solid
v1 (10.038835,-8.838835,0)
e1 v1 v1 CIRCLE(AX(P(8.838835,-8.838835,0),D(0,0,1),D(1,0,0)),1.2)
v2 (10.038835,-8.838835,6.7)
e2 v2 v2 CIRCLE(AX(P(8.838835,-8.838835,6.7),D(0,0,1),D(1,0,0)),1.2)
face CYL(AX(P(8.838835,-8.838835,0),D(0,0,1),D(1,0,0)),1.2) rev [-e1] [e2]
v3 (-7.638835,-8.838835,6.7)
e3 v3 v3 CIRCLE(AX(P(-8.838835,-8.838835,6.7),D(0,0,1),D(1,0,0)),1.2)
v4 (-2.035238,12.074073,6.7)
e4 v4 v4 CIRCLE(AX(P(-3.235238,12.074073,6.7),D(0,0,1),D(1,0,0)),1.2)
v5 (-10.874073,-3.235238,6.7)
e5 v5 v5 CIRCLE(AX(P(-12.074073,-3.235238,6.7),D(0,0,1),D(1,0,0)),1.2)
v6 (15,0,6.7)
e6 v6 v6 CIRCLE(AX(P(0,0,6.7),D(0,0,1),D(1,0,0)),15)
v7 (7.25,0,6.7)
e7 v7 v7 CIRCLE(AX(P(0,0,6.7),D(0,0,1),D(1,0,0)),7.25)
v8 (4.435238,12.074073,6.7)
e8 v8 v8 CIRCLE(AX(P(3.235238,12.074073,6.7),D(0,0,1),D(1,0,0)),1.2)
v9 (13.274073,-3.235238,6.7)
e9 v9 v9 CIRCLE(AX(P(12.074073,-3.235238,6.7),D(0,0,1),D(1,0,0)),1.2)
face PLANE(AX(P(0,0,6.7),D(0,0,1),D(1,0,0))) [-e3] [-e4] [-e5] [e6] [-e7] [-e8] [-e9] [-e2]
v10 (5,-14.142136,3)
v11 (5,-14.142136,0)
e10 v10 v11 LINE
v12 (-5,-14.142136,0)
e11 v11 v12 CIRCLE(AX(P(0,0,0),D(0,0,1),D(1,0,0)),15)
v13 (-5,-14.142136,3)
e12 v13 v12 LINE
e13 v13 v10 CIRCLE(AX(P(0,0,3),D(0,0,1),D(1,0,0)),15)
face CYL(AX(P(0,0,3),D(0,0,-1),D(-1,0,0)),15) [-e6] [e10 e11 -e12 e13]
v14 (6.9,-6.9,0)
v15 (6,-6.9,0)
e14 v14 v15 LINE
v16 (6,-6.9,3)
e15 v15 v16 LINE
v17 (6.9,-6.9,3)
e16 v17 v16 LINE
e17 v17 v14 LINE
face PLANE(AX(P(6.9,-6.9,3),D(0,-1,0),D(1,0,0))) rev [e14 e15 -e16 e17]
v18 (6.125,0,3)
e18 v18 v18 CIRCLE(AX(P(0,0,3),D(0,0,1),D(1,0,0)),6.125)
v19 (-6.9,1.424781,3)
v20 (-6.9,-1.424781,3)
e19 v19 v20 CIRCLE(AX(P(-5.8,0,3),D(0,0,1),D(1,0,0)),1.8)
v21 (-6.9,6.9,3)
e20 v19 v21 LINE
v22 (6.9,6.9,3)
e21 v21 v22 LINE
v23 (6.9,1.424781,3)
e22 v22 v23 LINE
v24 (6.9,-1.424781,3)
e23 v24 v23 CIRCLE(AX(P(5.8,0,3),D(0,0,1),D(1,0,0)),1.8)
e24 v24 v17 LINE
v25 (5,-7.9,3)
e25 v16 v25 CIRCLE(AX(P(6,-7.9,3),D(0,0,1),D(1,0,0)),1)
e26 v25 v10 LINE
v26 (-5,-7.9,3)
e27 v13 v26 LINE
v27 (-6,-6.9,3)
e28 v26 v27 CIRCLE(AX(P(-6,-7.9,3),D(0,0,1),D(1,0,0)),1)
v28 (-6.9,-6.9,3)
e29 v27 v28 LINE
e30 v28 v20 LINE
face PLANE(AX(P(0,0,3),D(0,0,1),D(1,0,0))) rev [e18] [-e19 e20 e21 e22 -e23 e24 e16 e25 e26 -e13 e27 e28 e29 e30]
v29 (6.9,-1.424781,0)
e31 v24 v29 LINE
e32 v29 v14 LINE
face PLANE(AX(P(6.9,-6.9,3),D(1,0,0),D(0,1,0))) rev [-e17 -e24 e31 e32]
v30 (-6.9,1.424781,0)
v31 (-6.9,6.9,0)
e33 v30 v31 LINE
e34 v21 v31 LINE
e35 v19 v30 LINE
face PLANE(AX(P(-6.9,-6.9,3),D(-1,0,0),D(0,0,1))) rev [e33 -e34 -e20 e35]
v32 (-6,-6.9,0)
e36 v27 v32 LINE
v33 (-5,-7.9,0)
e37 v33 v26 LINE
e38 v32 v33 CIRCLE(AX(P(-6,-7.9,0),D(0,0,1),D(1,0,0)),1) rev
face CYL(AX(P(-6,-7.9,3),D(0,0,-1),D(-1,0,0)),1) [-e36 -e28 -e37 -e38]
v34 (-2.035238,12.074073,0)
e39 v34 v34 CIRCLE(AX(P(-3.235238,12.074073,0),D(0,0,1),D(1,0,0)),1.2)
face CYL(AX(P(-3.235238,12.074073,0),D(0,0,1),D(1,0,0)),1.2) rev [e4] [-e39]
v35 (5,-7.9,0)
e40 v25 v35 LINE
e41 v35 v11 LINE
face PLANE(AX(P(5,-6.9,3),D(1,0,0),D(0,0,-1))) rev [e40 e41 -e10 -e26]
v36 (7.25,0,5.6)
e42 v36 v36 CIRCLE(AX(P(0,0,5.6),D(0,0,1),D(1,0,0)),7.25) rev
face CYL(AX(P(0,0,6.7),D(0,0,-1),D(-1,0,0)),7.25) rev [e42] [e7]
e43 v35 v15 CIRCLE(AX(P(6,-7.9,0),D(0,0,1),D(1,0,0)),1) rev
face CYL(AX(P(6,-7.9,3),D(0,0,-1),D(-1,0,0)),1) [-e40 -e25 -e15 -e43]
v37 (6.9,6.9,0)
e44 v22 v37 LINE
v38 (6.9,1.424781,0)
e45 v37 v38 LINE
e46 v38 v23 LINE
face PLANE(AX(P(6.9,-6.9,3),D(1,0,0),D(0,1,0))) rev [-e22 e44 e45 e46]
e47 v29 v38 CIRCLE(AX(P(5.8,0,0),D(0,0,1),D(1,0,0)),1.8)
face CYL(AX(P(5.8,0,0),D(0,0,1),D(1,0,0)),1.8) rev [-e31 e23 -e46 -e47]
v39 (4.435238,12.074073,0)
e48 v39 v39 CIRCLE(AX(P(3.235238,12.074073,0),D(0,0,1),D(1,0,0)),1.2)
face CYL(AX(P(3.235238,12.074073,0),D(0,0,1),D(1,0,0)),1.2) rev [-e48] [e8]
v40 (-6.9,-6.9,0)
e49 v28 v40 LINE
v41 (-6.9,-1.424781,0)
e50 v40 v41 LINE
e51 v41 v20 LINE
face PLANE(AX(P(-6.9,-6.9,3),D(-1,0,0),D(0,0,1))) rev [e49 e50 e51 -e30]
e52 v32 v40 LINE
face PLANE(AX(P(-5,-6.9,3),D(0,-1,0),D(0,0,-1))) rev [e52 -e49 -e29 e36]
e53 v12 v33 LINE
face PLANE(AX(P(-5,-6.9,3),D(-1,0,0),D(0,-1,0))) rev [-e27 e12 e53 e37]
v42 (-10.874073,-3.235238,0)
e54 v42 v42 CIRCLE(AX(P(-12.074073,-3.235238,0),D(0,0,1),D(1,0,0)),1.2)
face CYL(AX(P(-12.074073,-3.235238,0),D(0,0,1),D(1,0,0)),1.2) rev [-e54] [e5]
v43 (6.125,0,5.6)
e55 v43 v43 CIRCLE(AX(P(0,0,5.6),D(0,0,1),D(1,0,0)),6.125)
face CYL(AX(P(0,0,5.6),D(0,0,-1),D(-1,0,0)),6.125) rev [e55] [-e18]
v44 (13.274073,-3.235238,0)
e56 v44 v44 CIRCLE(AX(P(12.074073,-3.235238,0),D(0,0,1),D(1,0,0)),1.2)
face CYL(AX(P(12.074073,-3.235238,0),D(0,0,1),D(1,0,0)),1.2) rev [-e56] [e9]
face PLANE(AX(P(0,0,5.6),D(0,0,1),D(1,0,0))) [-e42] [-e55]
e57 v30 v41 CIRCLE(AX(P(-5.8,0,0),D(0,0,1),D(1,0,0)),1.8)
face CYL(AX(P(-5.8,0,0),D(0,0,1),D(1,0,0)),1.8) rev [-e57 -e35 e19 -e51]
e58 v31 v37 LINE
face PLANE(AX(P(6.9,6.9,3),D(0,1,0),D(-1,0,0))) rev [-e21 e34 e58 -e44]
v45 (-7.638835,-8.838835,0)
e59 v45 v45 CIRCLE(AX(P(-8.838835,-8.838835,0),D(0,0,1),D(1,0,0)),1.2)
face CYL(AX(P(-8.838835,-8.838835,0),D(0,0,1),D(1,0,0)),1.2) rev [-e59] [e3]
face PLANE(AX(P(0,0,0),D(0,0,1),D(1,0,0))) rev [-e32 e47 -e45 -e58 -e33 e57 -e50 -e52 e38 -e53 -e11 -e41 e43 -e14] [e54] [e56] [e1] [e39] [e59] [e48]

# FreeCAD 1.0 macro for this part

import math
import FreeCAD as App
import Part
import Sketcher
from FreeCAD import Vector


def edges_at(feature, points):
    """Names of the edges that pass closest to the given points."""
    edges = feature.Shape.Edges
    near = lambda p: min(range(len(edges)), key=lambda i: edges[i].distToShape(Part.Vertex(*p))[0])
    return sorted({f"Edge{near(p) + 1}" for p in points})

doc = App.newDocument("Part")
body = doc.addObject("PartDesign::Body", "Body")

# Sketch on XY plane
sketch1 = doc.addObject("Sketcher::SketchObject", "Sketch")
body.addObject(sketch1)
sketch1.AttachmentSupport = (doc.XY_Plane, [""])
sketch1.MapMode = "FlatFace"
sketch1.addGeometry(Part.LineSegment(Vector(-5, -6.9, 0), Vector(-6.9, -6.9, 0)), False)
sketch1.addGeometry(Part.LineSegment(Vector(-6.9, -6.9, 0), Vector(-6.9, 6.9, 0)), False)
sketch1.addGeometry(Part.LineSegment(Vector(-6.9, 6.9, 0), Vector(6.9, 6.9, 0)), False)
sketch1.addGeometry(Part.LineSegment(Vector(6.9, 6.9, 0), Vector(6.9, -6.9, 0)), False)
sketch1.addGeometry(Part.LineSegment(Vector(6.9, -6.9, 0), Vector(5, -6.9, 0)), False)
sketch1.addGeometry(Part.LineSegment(Vector(5, -6.9, 0), Vector(5, -14.142136, 0)), False)
sketch1.addGeometry(Part.ArcOfCircle(Part.Circle(Vector(0, 0, 0), Vector(0, 0, 1), 15), math.radians(-70.528779), math.radians(250.528779)), False)
sketch1.addGeometry(Part.LineSegment(Vector(-5, -14.142136, 0), Vector(-5, -6.9, 0)), False)
sketch1.addConstraint(Sketcher.Constraint("Coincident", 0, 2, 1, 1))
sketch1.addConstraint(Sketcher.Constraint("Coincident", 1, 2, 2, 1))
sketch1.addConstraint(Sketcher.Constraint("Coincident", 2, 2, 3, 1))
sketch1.addConstraint(Sketcher.Constraint("Coincident", 3, 2, 4, 1))
sketch1.addConstraint(Sketcher.Constraint("Coincident", 4, 2, 5, 1))
sketch1.addConstraint(Sketcher.Constraint("Coincident", 5, 2, 6, 1))
sketch1.addConstraint(Sketcher.Constraint("Coincident", 6, 2, 7, 1))
sketch1.addConstraint(Sketcher.Constraint("Coincident", 7, 2, 0, 1))
sketch1.addConstraint(Sketcher.Constraint("Horizontal", 0))
sketch1.addConstraint(Sketcher.Constraint("Vertical", 1))
sketch1.addConstraint(Sketcher.Constraint("Horizontal", 2))
sketch1.addConstraint(Sketcher.Constraint("Vertical", 3))
sketch1.addConstraint(Sketcher.Constraint("Horizontal", 4))
sketch1.addConstraint(Sketcher.Constraint("Vertical", 5))
sketch1.addConstraint(Sketcher.Constraint("Vertical", 7))
sketch1.addConstraint(Sketcher.Constraint("Coincident", 6, 3, -1, 1))
sketch1.addConstraint(Sketcher.Constraint("Symmetric", 0, 2, 2, 2, -1, 1))
sketch1.addConstraint(Sketcher.Constraint("Symmetric", 4, 2, 7, 2, -2))
sketch1.addConstraint(Sketcher.Constraint("Equal", 2, 1))
sketch1.addConstraint(Sketcher.Constraint("Radius", 6, 15.0))
sketch1.addConstraint(Sketcher.Constraint("DistanceX", 0, 2, 0, 1, 1.9))
sketch1.addConstraint(Sketcher.Constraint("DistanceX", 2, 1, 2, 2, 13.8))
pad1 = doc.addObject("PartDesign::Pad", "Pad")
body.addObject(pad1)
pad1.Profile = sketch1
pad1.Length = 3

# Sketch on XY plane
sketch2 = doc.addObject("Sketcher::SketchObject", "Sketch001")
body.addObject(sketch2)
sketch2.AttachmentSupport = (doc.XY_Plane, [""])
sketch2.MapMode = "FlatFace"
sketch2.AttachmentOffset = App.Placement(Vector(0, 0, 3), App.Rotation())
sketch2.addGeometry(Part.LineSegment(Vector(-5.8, -1.8, 0), Vector(5.8, -1.8, 0)), False)
sketch2.addGeometry(Part.ArcOfCircle(Part.Circle(Vector(5.8, 0, 0), Vector(0, 0, 1), 1.8), math.radians(-90), math.radians(90)), False)
sketch2.addGeometry(Part.LineSegment(Vector(5.8, 1.8, 0), Vector(-5.8, 1.8, 0)), False)
sketch2.addGeometry(Part.ArcOfCircle(Part.Circle(Vector(-5.8, 0, 0), Vector(0, 0, 1), 1.8), math.radians(90), math.radians(270)), False)
sketch2.addConstraint(Sketcher.Constraint("Tangent", 0, 2, 1, 1))
sketch2.addConstraint(Sketcher.Constraint("Tangent", 1, 2, 2, 1))
sketch2.addConstraint(Sketcher.Constraint("Tangent", 2, 2, 3, 1))
sketch2.addConstraint(Sketcher.Constraint("Tangent", 3, 2, 0, 1))
sketch2.addConstraint(Sketcher.Constraint("Horizontal", 0))
sketch2.addConstraint(Sketcher.Constraint("Horizontal", 2))
sketch2.addConstraint(Sketcher.Constraint("Symmetric", 1, 3, 3, 3, -1, 1))
sketch2.addConstraint(Sketcher.Constraint("Radius", 1, 1.8))
sketch2.addConstraint(Sketcher.Constraint("DistanceX", 0, 1, 0, 2, 11.6))
pocket1 = doc.addObject("PartDesign::Pocket", "Pocket")
body.addObject(pocket1)
pocket1.Profile = sketch2
pocket1.Type = "ThroughAll"

# Sketch on XY plane
sketch3 = doc.addObject("Sketcher::SketchObject", "Sketch002")
body.addObject(sketch3)
sketch3.AttachmentSupport = (doc.XY_Plane, [""])
sketch3.MapMode = "FlatFace"
sketch3.AttachmentOffset = App.Placement(Vector(0, 0, 3), App.Rotation())
sketch3.addGeometry(Part.Circle(Vector(0, 0, 0), Vector(0, 0, 1), 15), False)
sketch3.addGeometry(Part.Circle(Vector(0, 0, 0), Vector(0, 0, 1), 6.125), False)
sketch3.addConstraint(Sketcher.Constraint("Coincident", 0, 3, -1, 1))
sketch3.addConstraint(Sketcher.Constraint("Coincident", 1, 3, -1, 1))
sketch3.addConstraint(Sketcher.Constraint("Diameter", 0, 30.0))
sketch3.addConstraint(Sketcher.Constraint("Diameter", 1, 12.25))
pad2 = doc.addObject("PartDesign::Pad", "Pad001")
body.addObject(pad2)
pad2.Profile = sketch3
pad2.Length = 2.6

# Sketch on XY plane
sketch4 = doc.addObject("Sketcher::SketchObject", "Sketch003")
body.addObject(sketch4)
sketch4.AttachmentSupport = (doc.XY_Plane, [""])
sketch4.MapMode = "FlatFace"
sketch4.AttachmentOffset = App.Placement(Vector(0, 0, 5.6), App.Rotation())
sketch4.addGeometry(Part.Circle(Vector(0, 0, 0), Vector(0, 0, 1), 15), False)
sketch4.addGeometry(Part.Circle(Vector(0, 0, 0), Vector(0, 0, 1), 7.25), False)
sketch4.addConstraint(Sketcher.Constraint("Coincident", 0, 3, -1, 1))
sketch4.addConstraint(Sketcher.Constraint("Coincident", 1, 3, -1, 1))
sketch4.addConstraint(Sketcher.Constraint("Diameter", 0, 30.0))
sketch4.addConstraint(Sketcher.Constraint("Diameter", 1, 14.5))
pad3 = doc.addObject("PartDesign::Pad", "Pad002")
body.addObject(pad3)
pad3.Profile = sketch4
pad3.Length = 1.1

# Sketch on XY plane
sketch5 = doc.addObject("Sketcher::SketchObject", "Sketch004")
body.addObject(sketch5)
sketch5.AttachmentSupport = (doc.XY_Plane, [""])
sketch5.MapMode = "FlatFace"
sketch5.AttachmentOffset = App.Placement(Vector(0, 0, 6.7), App.Rotation())
sketch5.addGeometry(Part.Circle(Vector(3.235238, 12.074073, 0), Vector(0, 0, 1), 1.2), False)
sketch5.addGeometry(Part.Circle(Vector(-3.235238, 12.074073, 0), Vector(0, 0, 1), 1.2), False)
sketch5.addGeometry(Part.Circle(Vector(12.074073, -3.235238, 0), Vector(0, 0, 1), 1.2), False)
sketch5.addGeometry(Part.Circle(Vector(8.838835, -8.838835, 0), Vector(0, 0, 1), 1.2), False)
sketch5.addGeometry(Part.Circle(Vector(-8.838835, -8.838835, 0), Vector(0, 0, 1), 1.2), False)
sketch5.addGeometry(Part.Circle(Vector(-12.074073, -3.235238, 0), Vector(0, 0, 1), 1.2), False)
sketch5.addConstraint(Sketcher.Constraint("Equal", 0, 1))
sketch5.addConstraint(Sketcher.Constraint("Equal", 1, 2))
sketch5.addConstraint(Sketcher.Constraint("Equal", 2, 3))
sketch5.addConstraint(Sketcher.Constraint("Equal", 3, 4))
sketch5.addConstraint(Sketcher.Constraint("Equal", 4, 5))
sketch5.addConstraint(Sketcher.Constraint("Symmetric", 0, 3, 1, 3, -2))
sketch5.addConstraint(Sketcher.Constraint("Symmetric", 3, 3, 4, 3, -2))
sketch5.addConstraint(Sketcher.Constraint("Symmetric", 2, 3, 5, 3, -2))
sketch5.addConstraint(Sketcher.Constraint("Diameter", 0, 2.4))
sketch5.addConstraint(Sketcher.Constraint("DistanceX", -1, 1, 0, 3, 3.235238))
sketch5.addConstraint(Sketcher.Constraint("DistanceY", 2, 3, -1, 1, 3.235238))
sketch5.addConstraint(Sketcher.Constraint("DistanceY", 2, 3, 0, 3, 15.309311))
sketch5.addConstraint(Sketcher.Constraint("DistanceX", 1, 3, 2, 3, 15.309311))
sketch5.addConstraint(Sketcher.Constraint("DistanceX", 3, 3, 2, 3, 3.235238))
sketch5.addConstraint(Sketcher.Constraint("DistanceY", 3, 3, -1, 1, 8.838835))
pocket2 = doc.addObject("PartDesign::Pocket", "Pocket001")
body.addObject(pocket2)
pocket2.Profile = sketch5
pocket2.Type = "ThroughAll"
doc.recompute()

fillet = doc.addObject("PartDesign::Fillet", "Fillet")
body.addObject(fillet)
fillet.Base = (pocket2, edges_at(pocket2, [(-5, -6.9, 1.5), (5, -6.9, 1.5)]))
fillet.Radius = 1

doc.recompute()
